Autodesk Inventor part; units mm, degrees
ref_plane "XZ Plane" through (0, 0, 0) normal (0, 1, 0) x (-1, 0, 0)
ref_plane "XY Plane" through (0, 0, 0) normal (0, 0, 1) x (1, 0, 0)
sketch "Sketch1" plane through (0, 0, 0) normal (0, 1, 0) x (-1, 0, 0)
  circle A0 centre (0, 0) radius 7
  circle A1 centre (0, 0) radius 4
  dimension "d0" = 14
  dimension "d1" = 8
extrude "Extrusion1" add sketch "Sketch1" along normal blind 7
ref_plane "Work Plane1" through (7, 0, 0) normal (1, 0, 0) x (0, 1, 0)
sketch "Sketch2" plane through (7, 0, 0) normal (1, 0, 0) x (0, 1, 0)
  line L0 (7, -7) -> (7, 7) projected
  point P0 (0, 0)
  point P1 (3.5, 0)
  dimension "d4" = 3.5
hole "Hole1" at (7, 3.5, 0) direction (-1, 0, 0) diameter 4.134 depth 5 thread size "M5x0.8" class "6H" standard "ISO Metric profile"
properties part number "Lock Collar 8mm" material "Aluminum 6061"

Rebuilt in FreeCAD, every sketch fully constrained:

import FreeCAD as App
import Part
import Sketcher

V = App.Vector
Q = App.Units.Quantity

doc = App.newDocument("Part")
body = doc.addObject("PartDesign::Body", "Body")

# Sketch on XZ plane
sketch1 = body.newObject("Sketcher::SketchObject", "Sketch")
sketch1.AttachmentSupport = (doc.getObject("XZ_Plane"), [""])
sketch1.MapMode = "FlatFace"
sketch1.addGeometry(Part.Circle(V(0, 0, 0), V(0, 0, 1), 7), False)
sketch1.addGeometry(Part.Circle(V(0, 0, 0), V(0, 0, 1), 4), False)
sketch1.addConstraint(Sketcher.Constraint("Coincident", 0, 3, -1, 1))
sketch1.addConstraint(Sketcher.Constraint("Coincident", 1, 3, -1, 1))
sketch1.addConstraint(Sketcher.Constraint("Diameter", 0, Q("14 mm")))
sketch1.addConstraint(Sketcher.Constraint("Diameter", 1, Q("8 mm")))
pad1 = body.newObject("PartDesign::Pad", "Pad")
pad1.Profile = sketch1
pad1.Length = 7
pad1.Reversed = True

# Sketch on YZ plane
sketch2 = body.newObject("Sketcher::SketchObject", "Sketch001")
sketch2.AttachmentSupport = (doc.getObject("YZ_Plane"), [""])
sketch2.MapMode = "FlatFace"
sketch2.AttachmentOffset = App.Placement(V(0, 0, 7), App.Rotation())
sketch2.addGeometry(Part.Circle(V(3.5, 0, 0), V(0, 0, 1), 2.1), False)
sketch2.addConstraint(Sketcher.Constraint("PointOnObject", 0, 3, -1))
sketch2.addConstraint(Sketcher.Constraint("Diameter", 0, Q("4.134 mm")))
sketch2.addConstraint(Sketcher.Constraint("DistanceX", -1, 1, 0, 3, Q("3.5 mm")))
doc.recompute()
hole = body.newObject("PartDesign::Hole", "Hole")
hole.Profile = sketch2
hole.ThreadType = "None"
hole.Diameter = 4.134
hole.DepthType = "Dimension"
hole.Depth = 5
hole.DrillPoint = "Flat"

doc.recompute()
